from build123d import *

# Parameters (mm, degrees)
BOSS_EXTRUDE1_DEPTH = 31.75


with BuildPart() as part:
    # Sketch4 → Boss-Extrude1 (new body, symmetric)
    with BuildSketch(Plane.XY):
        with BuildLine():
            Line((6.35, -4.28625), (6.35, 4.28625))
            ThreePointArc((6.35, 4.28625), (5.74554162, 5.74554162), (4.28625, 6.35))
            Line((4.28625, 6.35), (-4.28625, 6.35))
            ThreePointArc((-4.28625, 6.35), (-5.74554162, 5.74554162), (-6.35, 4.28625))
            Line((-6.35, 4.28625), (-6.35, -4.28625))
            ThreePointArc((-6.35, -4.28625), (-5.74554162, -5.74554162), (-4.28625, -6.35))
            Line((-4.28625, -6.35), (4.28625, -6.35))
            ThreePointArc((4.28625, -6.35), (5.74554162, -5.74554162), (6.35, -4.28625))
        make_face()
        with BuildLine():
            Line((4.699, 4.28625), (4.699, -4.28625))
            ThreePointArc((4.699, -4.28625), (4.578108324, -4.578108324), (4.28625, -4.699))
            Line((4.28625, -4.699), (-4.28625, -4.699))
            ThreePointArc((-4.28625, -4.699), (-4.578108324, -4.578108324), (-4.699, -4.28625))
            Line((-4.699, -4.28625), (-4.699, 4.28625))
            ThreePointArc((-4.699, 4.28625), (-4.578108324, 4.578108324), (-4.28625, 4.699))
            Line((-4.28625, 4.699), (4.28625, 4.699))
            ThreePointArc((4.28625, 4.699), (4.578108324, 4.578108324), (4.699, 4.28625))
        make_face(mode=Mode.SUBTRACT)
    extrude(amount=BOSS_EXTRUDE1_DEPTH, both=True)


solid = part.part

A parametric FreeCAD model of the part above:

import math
import FreeCAD as App
import Part
import Sketcher
Q = App.Units.Quantity

doc = App.newDocument("Part")
body = doc.addObject("PartDesign::Body", "Body")

sketch1 = body.newObject("Sketcher::SketchObject", "Sketch")
sketch1.AttachmentSupport = (doc.getObject("XY_Plane"), [""])
sketch1.MapMode = "FlatFace"
sketch1.addGeometry([
    Part.LineSegment(App.Vector(6.35, -4.28625, 0), App.Vector(6.35, 4.28625, 0)),
    Part.ArcOfCircle(Part.Circle(App.Vector(4.28625, 4.28625, 0), App.Vector(0, 0, 1), 2.06375), math.radians(0), math.radians(90)),
    Part.LineSegment(App.Vector(4.28625, 6.35, 0), App.Vector(-4.28625, 6.35, 0)),
    Part.ArcOfCircle(Part.Circle(App.Vector(-4.28625, 4.28625, 0), App.Vector(0, 0, 1), 2.06375), math.radians(90), math.radians(180)),
    Part.LineSegment(App.Vector(-6.35, 4.28625, 0), App.Vector(-6.35, -4.28625, 0)),
    Part.ArcOfCircle(Part.Circle(App.Vector(-4.28625, -4.28625, 0), App.Vector(0, 0, 1), 2.06375), math.radians(180), math.radians(270)),
    Part.LineSegment(App.Vector(-4.28625, -6.35, 0), App.Vector(4.28625, -6.35, 0)),
    Part.ArcOfCircle(Part.Circle(App.Vector(4.28625, -4.28625, 0), App.Vector(0, 0, 1), 2.06375), math.radians(-90), math.radians(0)),
    Part.ArcOfCircle(Part.Circle(App.Vector(4.28625, 4.28625, 0), App.Vector(0, 0, 1), 0.41275), math.radians(0), math.radians(90)),
    Part.LineSegment(App.Vector(4.699, 4.28625, 0), App.Vector(4.699, -4.28625, 0)),
    Part.ArcOfCircle(Part.Circle(App.Vector(4.28625, -4.28625, 0), App.Vector(0, 0, 1), 0.41275), math.radians(-90), math.radians(0)),
    Part.LineSegment(App.Vector(4.28625, -4.699, 0), App.Vector(-4.28625, -4.699, 0)),
    Part.ArcOfCircle(Part.Circle(App.Vector(-4.28625, -4.28625, 0), App.Vector(0, 0, 1), 0.41275), math.radians(180), math.radians(270)),
    Part.LineSegment(App.Vector(-4.699, -4.28625, 0), App.Vector(-4.699, 4.28625, 0)),
    Part.ArcOfCircle(Part.Circle(App.Vector(-4.28625, 4.28625, 0), App.Vector(0, 0, 1), 0.41275), math.radians(90), math.radians(180)),
    Part.LineSegment(App.Vector(-4.28625, 4.699, 0), App.Vector(4.28625, 4.699, 0)),
], False)
sketch1.addConstraint([
    Sketcher.Constraint("Tangent", 0, 2, 1, 1),
    Sketcher.Constraint("Tangent", 1, 2, 2, 1),
    Sketcher.Constraint("Tangent", 2, 2, 3, 1),
    Sketcher.Constraint("Tangent", 3, 2, 4, 1),
    Sketcher.Constraint("Tangent", 4, 2, 5, 1),
    Sketcher.Constraint("Tangent", 5, 2, 6, 1),
    Sketcher.Constraint("Tangent", 6, 2, 7, 1),
    Sketcher.Constraint("Tangent", 7, 2, 0, 1),
    Sketcher.Constraint("Tangent", 8, 1, 9, 1),
    Sketcher.Constraint("Tangent", 9, 2, 10, 2),
    Sketcher.Constraint("Tangent", 10, 1, 11, 1),
    Sketcher.Constraint("Tangent", 11, 2, 12, 2),
    Sketcher.Constraint("Tangent", 12, 1, 13, 1),
    Sketcher.Constraint("Tangent", 13, 2, 14, 2),
    Sketcher.Constraint("Tangent", 14, 1, 15, 1),
    Sketcher.Constraint("Tangent", 15, 2, 8, 2),
    Sketcher.Constraint("Vertical", 0),
    Sketcher.Constraint("Horizontal", 2),
    Sketcher.Constraint("Vertical", 4),
    Sketcher.Constraint("Horizontal", 6),
    Sketcher.Constraint("Vertical", 9),
    Sketcher.Constraint("Horizontal", 11),
    Sketcher.Constraint("Vertical", 13),
    Sketcher.Constraint("Horizontal", 15),
    Sketcher.Constraint("Coincident", 8, 3, 1, 3),
    Sketcher.Constraint("Coincident", 10, 3, 7, 3),
    Sketcher.Constraint("Coincident", 12, 3, 5, 3),
    Sketcher.Constraint("Equal", 1, 3),
    Sketcher.Constraint("Equal", 3, 5),
    Sketcher.Constraint("Equal", 5, 7),
    Sketcher.Constraint("Equal", 12, 14),
    Sketcher.Constraint("Symmetric", 1, 3, 5, 3, -1, 1),
    Sketcher.Constraint("Equal", 15, 0),
    Sketcher.Constraint("DistanceX", -1, 1, 0, 2, Q("0.25 in")),
    Sketcher.Constraint("DistanceX", 2, 2, 2, 1, Q("0.3375 in")),
    Sketcher.Constraint("DistanceX", -1, 1, 8, 1, Q("0.185 in")),
])
pad1 = body.newObject("PartDesign::Pad", "Pad")
pad1.Profile = sketch1
pad1.Length = Q("2.5 in")
pad1.Midplane = True

doc.recompute()
